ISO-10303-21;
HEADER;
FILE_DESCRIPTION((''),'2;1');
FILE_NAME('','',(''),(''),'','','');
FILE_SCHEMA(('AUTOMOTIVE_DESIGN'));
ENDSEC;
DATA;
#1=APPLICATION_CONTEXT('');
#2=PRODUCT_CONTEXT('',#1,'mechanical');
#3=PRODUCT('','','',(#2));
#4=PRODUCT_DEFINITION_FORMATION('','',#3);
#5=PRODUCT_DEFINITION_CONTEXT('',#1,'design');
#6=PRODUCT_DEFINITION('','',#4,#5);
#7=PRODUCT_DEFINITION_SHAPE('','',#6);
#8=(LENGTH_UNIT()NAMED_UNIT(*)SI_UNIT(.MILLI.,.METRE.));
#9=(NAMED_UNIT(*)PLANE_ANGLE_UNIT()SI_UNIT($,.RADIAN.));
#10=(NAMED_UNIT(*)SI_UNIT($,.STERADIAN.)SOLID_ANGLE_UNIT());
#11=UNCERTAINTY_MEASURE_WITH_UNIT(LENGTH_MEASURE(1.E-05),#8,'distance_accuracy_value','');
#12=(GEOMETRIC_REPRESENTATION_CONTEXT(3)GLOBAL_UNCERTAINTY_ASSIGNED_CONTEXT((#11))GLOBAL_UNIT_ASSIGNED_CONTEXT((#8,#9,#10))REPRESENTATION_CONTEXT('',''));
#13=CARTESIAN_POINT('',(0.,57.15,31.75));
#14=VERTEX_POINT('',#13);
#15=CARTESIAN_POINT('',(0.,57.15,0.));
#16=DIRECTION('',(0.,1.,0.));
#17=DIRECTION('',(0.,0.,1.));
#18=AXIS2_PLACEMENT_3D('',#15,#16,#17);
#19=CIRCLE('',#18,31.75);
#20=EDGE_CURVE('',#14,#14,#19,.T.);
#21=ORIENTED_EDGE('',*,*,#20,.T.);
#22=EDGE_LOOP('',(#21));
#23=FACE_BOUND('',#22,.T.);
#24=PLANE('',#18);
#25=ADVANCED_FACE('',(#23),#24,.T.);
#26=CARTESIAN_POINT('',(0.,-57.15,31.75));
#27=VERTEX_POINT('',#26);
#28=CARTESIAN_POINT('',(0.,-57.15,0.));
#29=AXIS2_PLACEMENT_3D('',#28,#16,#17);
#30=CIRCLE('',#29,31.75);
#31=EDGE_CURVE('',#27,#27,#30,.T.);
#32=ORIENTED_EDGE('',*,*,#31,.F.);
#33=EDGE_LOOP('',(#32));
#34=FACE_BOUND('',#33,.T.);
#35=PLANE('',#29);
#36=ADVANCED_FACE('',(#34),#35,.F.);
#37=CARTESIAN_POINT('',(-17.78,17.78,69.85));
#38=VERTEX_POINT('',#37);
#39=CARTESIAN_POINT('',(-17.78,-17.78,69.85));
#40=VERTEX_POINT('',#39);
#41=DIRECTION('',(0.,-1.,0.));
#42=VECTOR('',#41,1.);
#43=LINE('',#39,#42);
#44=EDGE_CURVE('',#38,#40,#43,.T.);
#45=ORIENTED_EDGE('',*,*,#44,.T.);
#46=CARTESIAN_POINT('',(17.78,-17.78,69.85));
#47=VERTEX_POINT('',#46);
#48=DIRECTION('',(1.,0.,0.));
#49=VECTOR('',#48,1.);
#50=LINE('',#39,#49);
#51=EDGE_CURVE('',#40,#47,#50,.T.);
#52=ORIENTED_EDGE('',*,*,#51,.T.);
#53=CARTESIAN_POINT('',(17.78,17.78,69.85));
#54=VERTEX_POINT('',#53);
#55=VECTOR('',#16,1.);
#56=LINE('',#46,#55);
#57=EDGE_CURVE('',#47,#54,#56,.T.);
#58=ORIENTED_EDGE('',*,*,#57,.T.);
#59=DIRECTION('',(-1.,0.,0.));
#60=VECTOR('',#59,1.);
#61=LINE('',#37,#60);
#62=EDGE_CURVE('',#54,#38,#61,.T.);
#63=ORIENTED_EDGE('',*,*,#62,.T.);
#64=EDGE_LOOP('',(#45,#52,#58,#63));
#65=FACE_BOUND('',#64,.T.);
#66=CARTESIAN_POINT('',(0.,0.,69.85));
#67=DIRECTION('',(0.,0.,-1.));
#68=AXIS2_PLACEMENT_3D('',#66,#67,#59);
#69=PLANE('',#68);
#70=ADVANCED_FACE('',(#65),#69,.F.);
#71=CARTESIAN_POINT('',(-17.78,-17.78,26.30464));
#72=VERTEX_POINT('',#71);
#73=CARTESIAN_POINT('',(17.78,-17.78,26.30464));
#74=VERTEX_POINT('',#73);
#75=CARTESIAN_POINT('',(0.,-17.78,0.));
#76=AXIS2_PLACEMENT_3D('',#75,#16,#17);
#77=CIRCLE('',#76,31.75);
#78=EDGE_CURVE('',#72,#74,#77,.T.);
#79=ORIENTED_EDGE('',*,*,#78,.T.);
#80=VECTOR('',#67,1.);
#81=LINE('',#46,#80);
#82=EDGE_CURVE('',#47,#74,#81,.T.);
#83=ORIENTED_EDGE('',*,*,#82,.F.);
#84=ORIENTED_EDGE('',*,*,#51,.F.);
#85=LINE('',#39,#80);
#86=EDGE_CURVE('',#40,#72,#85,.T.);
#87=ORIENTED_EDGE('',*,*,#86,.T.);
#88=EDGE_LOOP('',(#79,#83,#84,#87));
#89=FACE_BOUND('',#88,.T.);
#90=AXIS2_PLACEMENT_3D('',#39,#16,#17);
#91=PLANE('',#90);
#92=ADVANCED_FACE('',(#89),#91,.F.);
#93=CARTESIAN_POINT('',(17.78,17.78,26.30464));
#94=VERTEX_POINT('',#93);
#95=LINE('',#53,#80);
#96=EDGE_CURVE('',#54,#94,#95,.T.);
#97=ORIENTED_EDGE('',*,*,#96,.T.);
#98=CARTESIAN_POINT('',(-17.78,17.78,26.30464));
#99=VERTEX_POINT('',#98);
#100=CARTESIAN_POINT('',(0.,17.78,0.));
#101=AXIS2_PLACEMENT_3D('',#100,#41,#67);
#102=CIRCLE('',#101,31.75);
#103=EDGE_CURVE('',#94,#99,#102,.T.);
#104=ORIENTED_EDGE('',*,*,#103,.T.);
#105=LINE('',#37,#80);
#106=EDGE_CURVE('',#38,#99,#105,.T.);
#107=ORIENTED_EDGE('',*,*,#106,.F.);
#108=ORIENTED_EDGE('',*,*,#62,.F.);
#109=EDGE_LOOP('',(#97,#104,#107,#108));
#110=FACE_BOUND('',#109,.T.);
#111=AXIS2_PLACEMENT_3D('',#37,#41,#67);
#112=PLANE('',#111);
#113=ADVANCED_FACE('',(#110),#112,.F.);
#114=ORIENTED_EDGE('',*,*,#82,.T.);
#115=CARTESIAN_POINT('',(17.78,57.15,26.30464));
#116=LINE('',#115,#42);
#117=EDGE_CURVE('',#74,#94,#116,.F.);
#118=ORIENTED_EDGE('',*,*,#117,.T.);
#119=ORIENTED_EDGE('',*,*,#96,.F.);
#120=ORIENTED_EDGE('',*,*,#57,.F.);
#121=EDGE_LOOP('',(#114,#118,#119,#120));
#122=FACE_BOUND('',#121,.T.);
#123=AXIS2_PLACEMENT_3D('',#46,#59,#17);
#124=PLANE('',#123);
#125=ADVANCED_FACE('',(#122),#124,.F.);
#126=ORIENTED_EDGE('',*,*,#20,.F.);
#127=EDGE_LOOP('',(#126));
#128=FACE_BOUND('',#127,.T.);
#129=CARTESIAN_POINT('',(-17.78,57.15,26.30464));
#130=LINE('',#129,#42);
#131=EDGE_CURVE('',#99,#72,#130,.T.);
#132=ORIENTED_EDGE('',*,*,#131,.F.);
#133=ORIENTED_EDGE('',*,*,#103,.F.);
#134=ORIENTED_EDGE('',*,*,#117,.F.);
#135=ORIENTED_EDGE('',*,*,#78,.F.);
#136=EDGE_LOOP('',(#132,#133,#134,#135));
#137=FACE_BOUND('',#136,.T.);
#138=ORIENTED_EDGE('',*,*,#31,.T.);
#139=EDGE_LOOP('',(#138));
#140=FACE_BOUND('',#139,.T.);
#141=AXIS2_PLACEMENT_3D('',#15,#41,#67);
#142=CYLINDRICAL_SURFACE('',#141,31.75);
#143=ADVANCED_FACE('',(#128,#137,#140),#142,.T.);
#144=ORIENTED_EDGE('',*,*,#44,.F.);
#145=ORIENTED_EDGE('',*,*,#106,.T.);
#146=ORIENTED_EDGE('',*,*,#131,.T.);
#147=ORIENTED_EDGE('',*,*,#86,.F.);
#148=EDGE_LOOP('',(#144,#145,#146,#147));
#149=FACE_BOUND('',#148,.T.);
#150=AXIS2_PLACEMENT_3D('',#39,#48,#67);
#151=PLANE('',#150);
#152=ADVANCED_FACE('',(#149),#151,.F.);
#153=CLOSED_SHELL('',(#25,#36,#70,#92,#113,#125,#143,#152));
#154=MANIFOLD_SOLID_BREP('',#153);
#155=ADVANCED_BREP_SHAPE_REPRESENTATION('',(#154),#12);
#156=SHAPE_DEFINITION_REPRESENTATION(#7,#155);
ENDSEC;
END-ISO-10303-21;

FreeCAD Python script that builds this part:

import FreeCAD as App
import Part
import Sketcher

V = App.Vector
Q = App.Units.Quantity


def add_polygon(sketch, points):
    """Adds a closed chain of lines whose ends are joined by coincident constraints."""
    first, n = sketch.GeometryCount, len(points)
    for a, b in zip(points, points[1:] + points[:1]):
        sketch.addGeometry(Part.LineSegment(App.Vector(*a, 0), App.Vector(*b, 0)), False)
    for i in range(n):
        sketch.addConstraint(Sketcher.Constraint("Coincident", first + i, 2, first + (i + 1) % n, 1))

doc = App.newDocument("Part")
body = doc.addObject("PartDesign::Body", "Body")

# Sketch on XZ plane
sketch1 = body.newObject("Sketcher::SketchObject", "Sketch")
sketch1.AttachmentSupport = (doc.getObject("XZ_Plane"), [""])
sketch1.MapMode = "FlatFace"
sketch1.addGeometry(Part.Circle(V(0, 0, 0), V(0, 0, 1), 32), False)
sketch1.addConstraint([
    Sketcher.Constraint("Coincident", 0, 3, -1, 1),
    Sketcher.Constraint("Diameter", 0, Q("2.5 in")),
])
pad1 = body.newObject("PartDesign::Pad", "Pad")
pad1.Profile = sketch1
pad1.Length = Q("4.5 in")
pad1.Midplane = True

# Sketch on XY plane
sketch2 = body.newObject("Sketcher::SketchObject", "Sketch001")
sketch2.AttachmentSupport = (doc.getObject("XY_Plane"), [""])
sketch2.MapMode = "FlatFace"
add_polygon(sketch2, [(-18, 18), (-18, -18), (18, -18), (18, 18)])  # lines 0-3
sketch2.addConstraint([
    Sketcher.Constraint("Vertical", 0),
    Sketcher.Constraint("Horizontal", 1),
    Sketcher.Constraint("Vertical", 2),
    Sketcher.Constraint("Horizontal", 3),
    Sketcher.Constraint("Symmetric", 0, 2, 2, 2, -1, 1),
    Sketcher.Constraint("Equal", 3, 0),
    Sketcher.Constraint("DistanceX", 1, 1, 1, 2, Q("1.4 in")),
])
pad2 = body.newObject("PartDesign::Pad", "Pad001")
pad2.Profile = sketch2
pad2.Length = Q("2.75 in")

doc.recompute()
